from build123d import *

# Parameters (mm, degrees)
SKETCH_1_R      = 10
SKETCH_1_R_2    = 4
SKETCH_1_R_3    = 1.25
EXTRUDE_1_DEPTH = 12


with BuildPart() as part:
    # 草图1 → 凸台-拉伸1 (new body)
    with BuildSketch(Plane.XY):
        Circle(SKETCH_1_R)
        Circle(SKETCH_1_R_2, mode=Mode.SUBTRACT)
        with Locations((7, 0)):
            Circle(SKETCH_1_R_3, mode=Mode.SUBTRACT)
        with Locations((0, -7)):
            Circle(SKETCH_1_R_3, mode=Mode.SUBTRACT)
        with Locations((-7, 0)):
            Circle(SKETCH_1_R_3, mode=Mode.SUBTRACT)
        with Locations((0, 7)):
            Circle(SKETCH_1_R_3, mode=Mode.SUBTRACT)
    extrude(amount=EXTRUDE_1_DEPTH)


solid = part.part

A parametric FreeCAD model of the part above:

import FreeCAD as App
import Part
import Sketcher
from FreeCAD import Vector

doc = App.newDocument("Part")
body = doc.addObject("PartDesign::Body", "Body")

# Sketch on XY plane
sketch1 = body.newObject("Sketcher::SketchObject", "Sketch")
sketch1.AttachmentSupport = (doc.getObject("XY_Plane"), [""])
sketch1.MapMode = "FlatFace"
sketch1.addGeometry([
    Part.Circle(Vector(0, 0, 0), Vector(0, 0, 1), 10),  # 0
    Part.Circle(Vector(0, -7, 0), Vector(0, 0, 1), 1.2),  # 1
    Part.Circle(Vector(-7, 0, 0), Vector(0, 0, 1), 1.2),  # 2
    Part.Circle(Vector(0, 0, 0), Vector(0, 0, 1), 4),  # 3
    Part.Circle(Vector(7, 0, 0), Vector(0, 0, 1), 1.2),  # 4
    Part.Circle(Vector(0, 7, 0), Vector(0, 0, 1), 1.2),  # 5
], False)
sketch1.addConstraint([
    Sketcher.Constraint("Coincident", 0, 3, -1, 1),
    Sketcher.Constraint("Coincident", 3, 3, -1, 1),
    Sketcher.Constraint("Equal", 1, 2),
    Sketcher.Constraint("Equal", 2, 4),
    Sketcher.Constraint("Equal", 4, 5),
    Sketcher.Constraint("Symmetric", 2, 3, 4, 3, -1, 1),
    Sketcher.Constraint("Symmetric", 1, 3, 5, 3, -1, 1),
    Sketcher.Constraint("PointOnObject", 1, 3, -2),
    Sketcher.Constraint("PointOnObject", 2, 3, -1),
    Sketcher.Constraint("Diameter", 0, 20.0),
    Sketcher.Constraint("Diameter", 3, 8.0),
    Sketcher.Constraint("Diameter", 1, 2.5),
    Sketcher.Constraint("DistanceY", 1, 3, -1, 1, 7.0),
    Sketcher.Constraint("DistanceX", 2, 3, -1, 1, 7.0),
])
pad1 = body.newObject("PartDesign::Pad", "Pad")
pad1.Profile = sketch1
pad1.Length = 12

doc.recompute()
